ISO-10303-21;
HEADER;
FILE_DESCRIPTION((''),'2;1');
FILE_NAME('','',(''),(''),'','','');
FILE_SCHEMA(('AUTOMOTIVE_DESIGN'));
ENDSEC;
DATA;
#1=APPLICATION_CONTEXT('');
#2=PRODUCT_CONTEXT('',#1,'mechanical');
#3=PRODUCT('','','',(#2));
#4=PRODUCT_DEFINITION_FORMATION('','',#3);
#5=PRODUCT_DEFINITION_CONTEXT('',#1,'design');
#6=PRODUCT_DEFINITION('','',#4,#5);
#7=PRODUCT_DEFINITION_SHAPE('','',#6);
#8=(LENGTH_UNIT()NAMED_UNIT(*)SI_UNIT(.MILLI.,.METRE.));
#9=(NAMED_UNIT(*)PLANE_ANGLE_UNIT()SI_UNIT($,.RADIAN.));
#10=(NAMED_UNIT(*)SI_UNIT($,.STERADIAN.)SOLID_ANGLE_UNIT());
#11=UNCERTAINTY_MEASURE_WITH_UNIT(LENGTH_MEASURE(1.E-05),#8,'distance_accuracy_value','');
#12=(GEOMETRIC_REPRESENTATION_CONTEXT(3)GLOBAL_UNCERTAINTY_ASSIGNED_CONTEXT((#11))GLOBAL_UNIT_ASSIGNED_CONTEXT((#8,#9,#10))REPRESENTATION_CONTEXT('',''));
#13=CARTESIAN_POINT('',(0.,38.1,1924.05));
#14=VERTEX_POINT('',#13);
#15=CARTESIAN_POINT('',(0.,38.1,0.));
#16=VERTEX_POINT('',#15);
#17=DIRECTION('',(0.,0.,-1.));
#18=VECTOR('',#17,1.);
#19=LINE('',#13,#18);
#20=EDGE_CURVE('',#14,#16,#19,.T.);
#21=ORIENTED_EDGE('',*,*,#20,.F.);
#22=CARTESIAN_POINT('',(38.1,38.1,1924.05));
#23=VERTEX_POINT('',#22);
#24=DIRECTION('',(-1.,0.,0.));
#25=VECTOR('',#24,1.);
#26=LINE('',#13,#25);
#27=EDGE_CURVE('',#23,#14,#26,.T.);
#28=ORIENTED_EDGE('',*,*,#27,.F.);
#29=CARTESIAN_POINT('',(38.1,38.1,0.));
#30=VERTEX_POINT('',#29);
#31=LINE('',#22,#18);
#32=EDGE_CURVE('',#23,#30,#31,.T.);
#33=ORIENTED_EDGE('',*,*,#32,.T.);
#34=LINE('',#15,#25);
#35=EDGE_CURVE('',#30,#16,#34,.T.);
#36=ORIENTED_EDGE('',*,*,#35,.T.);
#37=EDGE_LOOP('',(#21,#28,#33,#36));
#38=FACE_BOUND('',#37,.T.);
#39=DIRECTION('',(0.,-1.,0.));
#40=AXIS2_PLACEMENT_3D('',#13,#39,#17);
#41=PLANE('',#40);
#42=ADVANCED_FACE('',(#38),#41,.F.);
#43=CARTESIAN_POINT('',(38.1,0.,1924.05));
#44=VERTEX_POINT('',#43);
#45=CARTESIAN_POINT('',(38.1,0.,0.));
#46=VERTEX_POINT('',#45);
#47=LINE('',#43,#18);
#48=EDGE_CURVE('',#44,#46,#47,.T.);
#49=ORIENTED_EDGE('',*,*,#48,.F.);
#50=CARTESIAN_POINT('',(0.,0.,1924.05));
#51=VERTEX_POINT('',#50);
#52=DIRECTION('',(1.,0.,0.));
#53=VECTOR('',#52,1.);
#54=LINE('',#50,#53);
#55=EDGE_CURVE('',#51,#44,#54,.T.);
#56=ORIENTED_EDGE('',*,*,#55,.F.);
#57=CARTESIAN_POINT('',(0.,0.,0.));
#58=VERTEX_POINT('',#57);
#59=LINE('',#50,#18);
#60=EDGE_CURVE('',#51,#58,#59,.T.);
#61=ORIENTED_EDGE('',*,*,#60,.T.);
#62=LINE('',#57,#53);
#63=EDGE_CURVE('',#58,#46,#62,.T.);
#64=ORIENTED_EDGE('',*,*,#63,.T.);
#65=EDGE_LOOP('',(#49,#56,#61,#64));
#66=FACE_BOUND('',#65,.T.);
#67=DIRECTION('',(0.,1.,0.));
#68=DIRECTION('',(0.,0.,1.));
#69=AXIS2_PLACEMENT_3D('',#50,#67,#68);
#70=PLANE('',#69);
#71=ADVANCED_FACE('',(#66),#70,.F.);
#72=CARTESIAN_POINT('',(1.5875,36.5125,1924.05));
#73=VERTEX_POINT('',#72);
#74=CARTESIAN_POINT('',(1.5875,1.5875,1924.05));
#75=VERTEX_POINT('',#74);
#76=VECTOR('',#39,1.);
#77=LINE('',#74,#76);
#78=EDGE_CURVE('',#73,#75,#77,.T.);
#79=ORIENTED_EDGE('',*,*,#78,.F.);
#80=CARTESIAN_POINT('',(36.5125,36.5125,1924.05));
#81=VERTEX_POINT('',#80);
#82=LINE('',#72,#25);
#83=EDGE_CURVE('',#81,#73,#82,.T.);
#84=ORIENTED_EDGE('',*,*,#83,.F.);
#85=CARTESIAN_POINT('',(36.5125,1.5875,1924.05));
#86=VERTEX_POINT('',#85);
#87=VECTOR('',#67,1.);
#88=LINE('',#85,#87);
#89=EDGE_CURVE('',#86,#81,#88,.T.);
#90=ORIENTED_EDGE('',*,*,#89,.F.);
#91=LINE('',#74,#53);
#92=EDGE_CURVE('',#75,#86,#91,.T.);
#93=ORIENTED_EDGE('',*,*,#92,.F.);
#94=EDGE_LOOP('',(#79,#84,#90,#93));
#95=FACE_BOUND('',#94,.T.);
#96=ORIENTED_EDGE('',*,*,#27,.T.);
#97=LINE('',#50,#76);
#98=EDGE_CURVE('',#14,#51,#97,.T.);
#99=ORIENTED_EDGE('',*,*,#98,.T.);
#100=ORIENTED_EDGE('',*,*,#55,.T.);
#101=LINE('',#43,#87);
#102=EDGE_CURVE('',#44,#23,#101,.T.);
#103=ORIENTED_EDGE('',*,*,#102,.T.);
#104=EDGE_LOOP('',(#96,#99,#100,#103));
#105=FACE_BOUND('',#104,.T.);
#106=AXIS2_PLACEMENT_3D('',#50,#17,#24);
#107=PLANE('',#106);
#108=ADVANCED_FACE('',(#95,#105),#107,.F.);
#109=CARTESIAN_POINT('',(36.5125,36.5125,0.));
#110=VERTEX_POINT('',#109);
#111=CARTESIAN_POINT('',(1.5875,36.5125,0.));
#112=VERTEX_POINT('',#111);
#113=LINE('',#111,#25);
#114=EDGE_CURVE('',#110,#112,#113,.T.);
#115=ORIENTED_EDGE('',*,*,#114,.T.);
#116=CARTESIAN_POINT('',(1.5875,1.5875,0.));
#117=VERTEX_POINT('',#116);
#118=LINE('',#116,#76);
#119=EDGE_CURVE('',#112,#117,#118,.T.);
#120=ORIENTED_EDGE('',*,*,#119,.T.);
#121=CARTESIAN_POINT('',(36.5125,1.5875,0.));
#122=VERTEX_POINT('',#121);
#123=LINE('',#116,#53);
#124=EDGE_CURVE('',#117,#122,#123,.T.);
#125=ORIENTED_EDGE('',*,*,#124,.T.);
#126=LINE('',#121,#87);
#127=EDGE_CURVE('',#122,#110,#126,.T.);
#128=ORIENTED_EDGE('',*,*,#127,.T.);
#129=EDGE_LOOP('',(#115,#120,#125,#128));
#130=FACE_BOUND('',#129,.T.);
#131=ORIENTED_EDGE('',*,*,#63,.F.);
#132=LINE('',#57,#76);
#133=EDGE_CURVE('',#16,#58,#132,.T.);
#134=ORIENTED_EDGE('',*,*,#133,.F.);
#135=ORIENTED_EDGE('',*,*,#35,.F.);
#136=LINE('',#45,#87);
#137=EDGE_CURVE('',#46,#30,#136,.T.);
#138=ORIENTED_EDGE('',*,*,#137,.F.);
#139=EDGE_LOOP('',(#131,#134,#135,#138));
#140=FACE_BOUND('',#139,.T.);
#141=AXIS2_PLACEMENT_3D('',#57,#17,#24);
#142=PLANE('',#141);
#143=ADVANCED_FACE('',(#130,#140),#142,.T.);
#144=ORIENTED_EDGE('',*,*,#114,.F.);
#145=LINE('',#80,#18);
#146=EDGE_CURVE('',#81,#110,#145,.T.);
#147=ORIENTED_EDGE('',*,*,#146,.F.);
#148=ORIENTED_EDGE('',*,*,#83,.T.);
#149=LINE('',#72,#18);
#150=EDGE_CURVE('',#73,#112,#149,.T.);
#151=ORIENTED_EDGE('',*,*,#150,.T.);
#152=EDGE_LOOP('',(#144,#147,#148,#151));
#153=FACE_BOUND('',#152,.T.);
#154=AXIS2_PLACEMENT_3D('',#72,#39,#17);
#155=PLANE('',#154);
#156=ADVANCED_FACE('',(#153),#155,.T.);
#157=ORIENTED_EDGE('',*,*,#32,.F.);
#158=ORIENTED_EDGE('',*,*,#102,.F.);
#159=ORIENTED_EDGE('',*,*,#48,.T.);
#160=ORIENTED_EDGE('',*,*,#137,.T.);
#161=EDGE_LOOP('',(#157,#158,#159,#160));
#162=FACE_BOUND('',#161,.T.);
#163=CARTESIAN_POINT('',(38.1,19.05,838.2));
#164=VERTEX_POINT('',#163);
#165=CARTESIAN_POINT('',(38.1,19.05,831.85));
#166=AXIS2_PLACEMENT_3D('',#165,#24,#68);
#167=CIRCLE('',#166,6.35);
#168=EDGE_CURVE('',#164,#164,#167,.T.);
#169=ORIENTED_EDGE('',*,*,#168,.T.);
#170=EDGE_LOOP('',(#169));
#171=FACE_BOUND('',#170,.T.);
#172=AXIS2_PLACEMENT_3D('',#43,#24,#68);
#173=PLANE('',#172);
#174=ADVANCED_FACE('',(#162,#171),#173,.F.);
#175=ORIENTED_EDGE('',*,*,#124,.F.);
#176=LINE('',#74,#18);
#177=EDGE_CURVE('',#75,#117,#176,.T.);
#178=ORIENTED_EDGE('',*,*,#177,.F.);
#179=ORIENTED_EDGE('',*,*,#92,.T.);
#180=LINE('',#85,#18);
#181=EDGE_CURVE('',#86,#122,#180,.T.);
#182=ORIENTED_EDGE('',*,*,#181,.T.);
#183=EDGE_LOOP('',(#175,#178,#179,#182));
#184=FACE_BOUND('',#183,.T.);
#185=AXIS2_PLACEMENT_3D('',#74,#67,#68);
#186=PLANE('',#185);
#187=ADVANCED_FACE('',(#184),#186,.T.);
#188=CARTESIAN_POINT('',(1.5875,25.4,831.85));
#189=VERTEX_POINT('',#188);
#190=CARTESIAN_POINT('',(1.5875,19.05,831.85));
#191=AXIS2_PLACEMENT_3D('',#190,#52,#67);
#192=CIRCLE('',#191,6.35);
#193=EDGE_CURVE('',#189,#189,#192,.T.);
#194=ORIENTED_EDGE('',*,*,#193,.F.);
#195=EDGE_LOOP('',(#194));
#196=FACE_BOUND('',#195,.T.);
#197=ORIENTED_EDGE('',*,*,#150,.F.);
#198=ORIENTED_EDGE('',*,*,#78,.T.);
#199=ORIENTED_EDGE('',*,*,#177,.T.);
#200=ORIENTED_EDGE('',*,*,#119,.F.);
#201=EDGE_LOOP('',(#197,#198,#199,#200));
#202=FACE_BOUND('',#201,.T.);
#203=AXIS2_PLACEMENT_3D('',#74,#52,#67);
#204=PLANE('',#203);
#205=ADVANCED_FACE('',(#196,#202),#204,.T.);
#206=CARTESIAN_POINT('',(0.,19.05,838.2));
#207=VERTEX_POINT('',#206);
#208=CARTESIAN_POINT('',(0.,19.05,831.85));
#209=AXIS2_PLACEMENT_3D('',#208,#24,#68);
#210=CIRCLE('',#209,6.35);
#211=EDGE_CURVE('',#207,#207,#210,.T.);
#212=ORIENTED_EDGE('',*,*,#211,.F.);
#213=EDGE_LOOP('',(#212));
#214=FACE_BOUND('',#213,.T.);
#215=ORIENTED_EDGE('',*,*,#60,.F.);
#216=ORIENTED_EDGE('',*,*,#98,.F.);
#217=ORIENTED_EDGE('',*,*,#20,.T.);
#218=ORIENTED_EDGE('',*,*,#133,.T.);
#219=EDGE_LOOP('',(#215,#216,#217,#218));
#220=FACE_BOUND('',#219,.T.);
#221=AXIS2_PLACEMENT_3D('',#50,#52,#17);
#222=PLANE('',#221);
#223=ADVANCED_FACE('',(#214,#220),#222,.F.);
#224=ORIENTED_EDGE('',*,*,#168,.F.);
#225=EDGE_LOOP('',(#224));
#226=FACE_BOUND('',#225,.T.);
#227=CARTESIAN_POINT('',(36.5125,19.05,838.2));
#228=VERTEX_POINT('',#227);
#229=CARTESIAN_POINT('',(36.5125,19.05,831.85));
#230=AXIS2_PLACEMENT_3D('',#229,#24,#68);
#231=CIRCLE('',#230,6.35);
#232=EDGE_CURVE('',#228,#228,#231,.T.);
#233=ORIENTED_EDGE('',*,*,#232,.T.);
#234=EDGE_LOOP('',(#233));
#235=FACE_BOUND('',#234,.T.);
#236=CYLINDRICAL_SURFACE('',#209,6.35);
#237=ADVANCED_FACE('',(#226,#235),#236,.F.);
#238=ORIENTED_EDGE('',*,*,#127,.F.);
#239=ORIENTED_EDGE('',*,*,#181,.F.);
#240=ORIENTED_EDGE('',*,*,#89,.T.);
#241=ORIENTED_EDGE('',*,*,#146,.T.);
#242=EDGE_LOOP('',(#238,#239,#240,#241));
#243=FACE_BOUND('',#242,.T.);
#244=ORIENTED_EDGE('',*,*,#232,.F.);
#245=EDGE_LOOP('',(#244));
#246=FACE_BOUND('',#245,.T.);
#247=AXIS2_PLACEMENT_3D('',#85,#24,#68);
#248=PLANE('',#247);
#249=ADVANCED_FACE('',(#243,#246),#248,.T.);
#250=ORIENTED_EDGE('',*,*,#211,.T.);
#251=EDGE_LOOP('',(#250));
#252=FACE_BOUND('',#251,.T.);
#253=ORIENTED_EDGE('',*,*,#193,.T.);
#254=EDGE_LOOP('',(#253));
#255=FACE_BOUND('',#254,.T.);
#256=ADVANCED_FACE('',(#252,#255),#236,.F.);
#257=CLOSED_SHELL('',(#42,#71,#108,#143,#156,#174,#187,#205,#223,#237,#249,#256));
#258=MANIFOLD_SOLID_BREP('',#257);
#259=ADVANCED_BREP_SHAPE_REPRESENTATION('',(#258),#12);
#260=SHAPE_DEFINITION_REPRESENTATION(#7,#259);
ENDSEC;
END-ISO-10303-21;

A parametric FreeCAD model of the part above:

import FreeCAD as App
import Part
import Sketcher

V = App.Vector
Q = App.Units.Quantity


def add_polygon(sketch, points):
    """Adds a closed chain of lines whose ends are joined by coincident constraints."""
    first, n = sketch.GeometryCount, len(points)
    for a, b in zip(points, points[1:] + points[:1]):
        sketch.addGeometry(Part.LineSegment(App.Vector(*a, 0), App.Vector(*b, 0)), False)
    for i in range(n):
        sketch.addConstraint(Sketcher.Constraint("Coincident", first + i, 2, first + (i + 1) % n, 1))

doc = App.newDocument("Part")
params = doc.addObject("Spreadsheet::Sheet", "Params")
for row, (alias, value) in enumerate([
    ("sketch1_width", "1.5 in"),
    ("sketch1_width2", "1.375 in"),
    ("pad1_length", "75.75 in"),
    ("sketch2_diameter", "0.5 in"),
    ("hole_diameter", "0.5 in"),
], start=1):
    params.set(f"A{row}", alias)
    params.set(f"B{row}", "=" + value)
    params.setAlias(f"B{row}", alias)

body = doc.addObject("PartDesign::Body", "Body")

sketch1 = body.newObject("Sketcher::SketchObject", "Sketch")
sketch1.AttachmentSupport = (doc.getObject("XY_Plane"), [""])
sketch1.MapMode = "FlatFace"
add_polygon(sketch1, [(0, 38.1), (0, 0), (38.1, 0), (38.1, 38.1)])
add_polygon(sketch1, [(36.5125, 1.5875), (1.5875, 1.5875), (1.5875, 36.5125), (36.5125, 36.5125)])
sketch1.addConstraint([
    Sketcher.Constraint("Vertical", 0),
    Sketcher.Constraint("Horizontal", 1),
    Sketcher.Constraint("Vertical", 2),
    Sketcher.Constraint("Horizontal", 3),
    Sketcher.Constraint("Horizontal", 4),
    Sketcher.Constraint("Vertical", 5),
    Sketcher.Constraint("Horizontal", 6),
    Sketcher.Constraint("Vertical", 7),
    Sketcher.Constraint("Coincident", 0, 2, -1, 1),
    Sketcher.Constraint("Equal", 3, 0),
    Sketcher.Constraint("Equal", 6, 5),
    Sketcher.Constraint("DistanceX", 1, 1, 1, 2, Q("1.5 in")),
    Sketcher.Constraint("DistanceX", 4, 2, 4, 1, Q("1.375 in")),
    Sketcher.Constraint("DistanceX", -1, 1, 4, 2, Q("0.0625 in")),
    Sketcher.Constraint("DistanceY", -1, 1, 4, 2, Q("0.0625 in")),
])
sketch1.setExpression("Constraints[19]", "Params.sketch1_width")
sketch1.setExpression("Constraints[20]", "Params.sketch1_width2")
pad1 = body.newObject("PartDesign::Pad", "Pad")
pad1.Profile = sketch1
pad1.setExpression("Length", "Params.pad1_length")

sketch2 = body.newObject("Sketcher::SketchObject", "Sketch001")
sketch2.AttachmentSupport = (doc.getObject("YZ_Plane"), [""])
sketch2.MapMode = "FlatFace"
sketch2.addGeometry(Part.Circle(V(19.05, 831.85, 0), V(0, 0, 1), 6.35), False)
sketch2.addConstraint([
    Sketcher.Constraint("Diameter", 0, Q("0.5 in")),
    Sketcher.Constraint("DistanceX", -1, 1, 0, 3, Q("0.75 in")),
    Sketcher.Constraint("DistanceY", -1, 1, 0, 3, Q("32.75 in")),
])
sketch2.setExpression("Constraints[0]", "Params.sketch2_diameter")
doc.recompute()
hole = body.newObject("PartDesign::Hole", "Hole")
hole.Profile = sketch2
hole.ThreadType = "None"
hole.setExpression("Diameter", "Params.hole_diameter")
hole.DepthType = "ThroughAll"
hole.Reversed = True

doc.recompute()
